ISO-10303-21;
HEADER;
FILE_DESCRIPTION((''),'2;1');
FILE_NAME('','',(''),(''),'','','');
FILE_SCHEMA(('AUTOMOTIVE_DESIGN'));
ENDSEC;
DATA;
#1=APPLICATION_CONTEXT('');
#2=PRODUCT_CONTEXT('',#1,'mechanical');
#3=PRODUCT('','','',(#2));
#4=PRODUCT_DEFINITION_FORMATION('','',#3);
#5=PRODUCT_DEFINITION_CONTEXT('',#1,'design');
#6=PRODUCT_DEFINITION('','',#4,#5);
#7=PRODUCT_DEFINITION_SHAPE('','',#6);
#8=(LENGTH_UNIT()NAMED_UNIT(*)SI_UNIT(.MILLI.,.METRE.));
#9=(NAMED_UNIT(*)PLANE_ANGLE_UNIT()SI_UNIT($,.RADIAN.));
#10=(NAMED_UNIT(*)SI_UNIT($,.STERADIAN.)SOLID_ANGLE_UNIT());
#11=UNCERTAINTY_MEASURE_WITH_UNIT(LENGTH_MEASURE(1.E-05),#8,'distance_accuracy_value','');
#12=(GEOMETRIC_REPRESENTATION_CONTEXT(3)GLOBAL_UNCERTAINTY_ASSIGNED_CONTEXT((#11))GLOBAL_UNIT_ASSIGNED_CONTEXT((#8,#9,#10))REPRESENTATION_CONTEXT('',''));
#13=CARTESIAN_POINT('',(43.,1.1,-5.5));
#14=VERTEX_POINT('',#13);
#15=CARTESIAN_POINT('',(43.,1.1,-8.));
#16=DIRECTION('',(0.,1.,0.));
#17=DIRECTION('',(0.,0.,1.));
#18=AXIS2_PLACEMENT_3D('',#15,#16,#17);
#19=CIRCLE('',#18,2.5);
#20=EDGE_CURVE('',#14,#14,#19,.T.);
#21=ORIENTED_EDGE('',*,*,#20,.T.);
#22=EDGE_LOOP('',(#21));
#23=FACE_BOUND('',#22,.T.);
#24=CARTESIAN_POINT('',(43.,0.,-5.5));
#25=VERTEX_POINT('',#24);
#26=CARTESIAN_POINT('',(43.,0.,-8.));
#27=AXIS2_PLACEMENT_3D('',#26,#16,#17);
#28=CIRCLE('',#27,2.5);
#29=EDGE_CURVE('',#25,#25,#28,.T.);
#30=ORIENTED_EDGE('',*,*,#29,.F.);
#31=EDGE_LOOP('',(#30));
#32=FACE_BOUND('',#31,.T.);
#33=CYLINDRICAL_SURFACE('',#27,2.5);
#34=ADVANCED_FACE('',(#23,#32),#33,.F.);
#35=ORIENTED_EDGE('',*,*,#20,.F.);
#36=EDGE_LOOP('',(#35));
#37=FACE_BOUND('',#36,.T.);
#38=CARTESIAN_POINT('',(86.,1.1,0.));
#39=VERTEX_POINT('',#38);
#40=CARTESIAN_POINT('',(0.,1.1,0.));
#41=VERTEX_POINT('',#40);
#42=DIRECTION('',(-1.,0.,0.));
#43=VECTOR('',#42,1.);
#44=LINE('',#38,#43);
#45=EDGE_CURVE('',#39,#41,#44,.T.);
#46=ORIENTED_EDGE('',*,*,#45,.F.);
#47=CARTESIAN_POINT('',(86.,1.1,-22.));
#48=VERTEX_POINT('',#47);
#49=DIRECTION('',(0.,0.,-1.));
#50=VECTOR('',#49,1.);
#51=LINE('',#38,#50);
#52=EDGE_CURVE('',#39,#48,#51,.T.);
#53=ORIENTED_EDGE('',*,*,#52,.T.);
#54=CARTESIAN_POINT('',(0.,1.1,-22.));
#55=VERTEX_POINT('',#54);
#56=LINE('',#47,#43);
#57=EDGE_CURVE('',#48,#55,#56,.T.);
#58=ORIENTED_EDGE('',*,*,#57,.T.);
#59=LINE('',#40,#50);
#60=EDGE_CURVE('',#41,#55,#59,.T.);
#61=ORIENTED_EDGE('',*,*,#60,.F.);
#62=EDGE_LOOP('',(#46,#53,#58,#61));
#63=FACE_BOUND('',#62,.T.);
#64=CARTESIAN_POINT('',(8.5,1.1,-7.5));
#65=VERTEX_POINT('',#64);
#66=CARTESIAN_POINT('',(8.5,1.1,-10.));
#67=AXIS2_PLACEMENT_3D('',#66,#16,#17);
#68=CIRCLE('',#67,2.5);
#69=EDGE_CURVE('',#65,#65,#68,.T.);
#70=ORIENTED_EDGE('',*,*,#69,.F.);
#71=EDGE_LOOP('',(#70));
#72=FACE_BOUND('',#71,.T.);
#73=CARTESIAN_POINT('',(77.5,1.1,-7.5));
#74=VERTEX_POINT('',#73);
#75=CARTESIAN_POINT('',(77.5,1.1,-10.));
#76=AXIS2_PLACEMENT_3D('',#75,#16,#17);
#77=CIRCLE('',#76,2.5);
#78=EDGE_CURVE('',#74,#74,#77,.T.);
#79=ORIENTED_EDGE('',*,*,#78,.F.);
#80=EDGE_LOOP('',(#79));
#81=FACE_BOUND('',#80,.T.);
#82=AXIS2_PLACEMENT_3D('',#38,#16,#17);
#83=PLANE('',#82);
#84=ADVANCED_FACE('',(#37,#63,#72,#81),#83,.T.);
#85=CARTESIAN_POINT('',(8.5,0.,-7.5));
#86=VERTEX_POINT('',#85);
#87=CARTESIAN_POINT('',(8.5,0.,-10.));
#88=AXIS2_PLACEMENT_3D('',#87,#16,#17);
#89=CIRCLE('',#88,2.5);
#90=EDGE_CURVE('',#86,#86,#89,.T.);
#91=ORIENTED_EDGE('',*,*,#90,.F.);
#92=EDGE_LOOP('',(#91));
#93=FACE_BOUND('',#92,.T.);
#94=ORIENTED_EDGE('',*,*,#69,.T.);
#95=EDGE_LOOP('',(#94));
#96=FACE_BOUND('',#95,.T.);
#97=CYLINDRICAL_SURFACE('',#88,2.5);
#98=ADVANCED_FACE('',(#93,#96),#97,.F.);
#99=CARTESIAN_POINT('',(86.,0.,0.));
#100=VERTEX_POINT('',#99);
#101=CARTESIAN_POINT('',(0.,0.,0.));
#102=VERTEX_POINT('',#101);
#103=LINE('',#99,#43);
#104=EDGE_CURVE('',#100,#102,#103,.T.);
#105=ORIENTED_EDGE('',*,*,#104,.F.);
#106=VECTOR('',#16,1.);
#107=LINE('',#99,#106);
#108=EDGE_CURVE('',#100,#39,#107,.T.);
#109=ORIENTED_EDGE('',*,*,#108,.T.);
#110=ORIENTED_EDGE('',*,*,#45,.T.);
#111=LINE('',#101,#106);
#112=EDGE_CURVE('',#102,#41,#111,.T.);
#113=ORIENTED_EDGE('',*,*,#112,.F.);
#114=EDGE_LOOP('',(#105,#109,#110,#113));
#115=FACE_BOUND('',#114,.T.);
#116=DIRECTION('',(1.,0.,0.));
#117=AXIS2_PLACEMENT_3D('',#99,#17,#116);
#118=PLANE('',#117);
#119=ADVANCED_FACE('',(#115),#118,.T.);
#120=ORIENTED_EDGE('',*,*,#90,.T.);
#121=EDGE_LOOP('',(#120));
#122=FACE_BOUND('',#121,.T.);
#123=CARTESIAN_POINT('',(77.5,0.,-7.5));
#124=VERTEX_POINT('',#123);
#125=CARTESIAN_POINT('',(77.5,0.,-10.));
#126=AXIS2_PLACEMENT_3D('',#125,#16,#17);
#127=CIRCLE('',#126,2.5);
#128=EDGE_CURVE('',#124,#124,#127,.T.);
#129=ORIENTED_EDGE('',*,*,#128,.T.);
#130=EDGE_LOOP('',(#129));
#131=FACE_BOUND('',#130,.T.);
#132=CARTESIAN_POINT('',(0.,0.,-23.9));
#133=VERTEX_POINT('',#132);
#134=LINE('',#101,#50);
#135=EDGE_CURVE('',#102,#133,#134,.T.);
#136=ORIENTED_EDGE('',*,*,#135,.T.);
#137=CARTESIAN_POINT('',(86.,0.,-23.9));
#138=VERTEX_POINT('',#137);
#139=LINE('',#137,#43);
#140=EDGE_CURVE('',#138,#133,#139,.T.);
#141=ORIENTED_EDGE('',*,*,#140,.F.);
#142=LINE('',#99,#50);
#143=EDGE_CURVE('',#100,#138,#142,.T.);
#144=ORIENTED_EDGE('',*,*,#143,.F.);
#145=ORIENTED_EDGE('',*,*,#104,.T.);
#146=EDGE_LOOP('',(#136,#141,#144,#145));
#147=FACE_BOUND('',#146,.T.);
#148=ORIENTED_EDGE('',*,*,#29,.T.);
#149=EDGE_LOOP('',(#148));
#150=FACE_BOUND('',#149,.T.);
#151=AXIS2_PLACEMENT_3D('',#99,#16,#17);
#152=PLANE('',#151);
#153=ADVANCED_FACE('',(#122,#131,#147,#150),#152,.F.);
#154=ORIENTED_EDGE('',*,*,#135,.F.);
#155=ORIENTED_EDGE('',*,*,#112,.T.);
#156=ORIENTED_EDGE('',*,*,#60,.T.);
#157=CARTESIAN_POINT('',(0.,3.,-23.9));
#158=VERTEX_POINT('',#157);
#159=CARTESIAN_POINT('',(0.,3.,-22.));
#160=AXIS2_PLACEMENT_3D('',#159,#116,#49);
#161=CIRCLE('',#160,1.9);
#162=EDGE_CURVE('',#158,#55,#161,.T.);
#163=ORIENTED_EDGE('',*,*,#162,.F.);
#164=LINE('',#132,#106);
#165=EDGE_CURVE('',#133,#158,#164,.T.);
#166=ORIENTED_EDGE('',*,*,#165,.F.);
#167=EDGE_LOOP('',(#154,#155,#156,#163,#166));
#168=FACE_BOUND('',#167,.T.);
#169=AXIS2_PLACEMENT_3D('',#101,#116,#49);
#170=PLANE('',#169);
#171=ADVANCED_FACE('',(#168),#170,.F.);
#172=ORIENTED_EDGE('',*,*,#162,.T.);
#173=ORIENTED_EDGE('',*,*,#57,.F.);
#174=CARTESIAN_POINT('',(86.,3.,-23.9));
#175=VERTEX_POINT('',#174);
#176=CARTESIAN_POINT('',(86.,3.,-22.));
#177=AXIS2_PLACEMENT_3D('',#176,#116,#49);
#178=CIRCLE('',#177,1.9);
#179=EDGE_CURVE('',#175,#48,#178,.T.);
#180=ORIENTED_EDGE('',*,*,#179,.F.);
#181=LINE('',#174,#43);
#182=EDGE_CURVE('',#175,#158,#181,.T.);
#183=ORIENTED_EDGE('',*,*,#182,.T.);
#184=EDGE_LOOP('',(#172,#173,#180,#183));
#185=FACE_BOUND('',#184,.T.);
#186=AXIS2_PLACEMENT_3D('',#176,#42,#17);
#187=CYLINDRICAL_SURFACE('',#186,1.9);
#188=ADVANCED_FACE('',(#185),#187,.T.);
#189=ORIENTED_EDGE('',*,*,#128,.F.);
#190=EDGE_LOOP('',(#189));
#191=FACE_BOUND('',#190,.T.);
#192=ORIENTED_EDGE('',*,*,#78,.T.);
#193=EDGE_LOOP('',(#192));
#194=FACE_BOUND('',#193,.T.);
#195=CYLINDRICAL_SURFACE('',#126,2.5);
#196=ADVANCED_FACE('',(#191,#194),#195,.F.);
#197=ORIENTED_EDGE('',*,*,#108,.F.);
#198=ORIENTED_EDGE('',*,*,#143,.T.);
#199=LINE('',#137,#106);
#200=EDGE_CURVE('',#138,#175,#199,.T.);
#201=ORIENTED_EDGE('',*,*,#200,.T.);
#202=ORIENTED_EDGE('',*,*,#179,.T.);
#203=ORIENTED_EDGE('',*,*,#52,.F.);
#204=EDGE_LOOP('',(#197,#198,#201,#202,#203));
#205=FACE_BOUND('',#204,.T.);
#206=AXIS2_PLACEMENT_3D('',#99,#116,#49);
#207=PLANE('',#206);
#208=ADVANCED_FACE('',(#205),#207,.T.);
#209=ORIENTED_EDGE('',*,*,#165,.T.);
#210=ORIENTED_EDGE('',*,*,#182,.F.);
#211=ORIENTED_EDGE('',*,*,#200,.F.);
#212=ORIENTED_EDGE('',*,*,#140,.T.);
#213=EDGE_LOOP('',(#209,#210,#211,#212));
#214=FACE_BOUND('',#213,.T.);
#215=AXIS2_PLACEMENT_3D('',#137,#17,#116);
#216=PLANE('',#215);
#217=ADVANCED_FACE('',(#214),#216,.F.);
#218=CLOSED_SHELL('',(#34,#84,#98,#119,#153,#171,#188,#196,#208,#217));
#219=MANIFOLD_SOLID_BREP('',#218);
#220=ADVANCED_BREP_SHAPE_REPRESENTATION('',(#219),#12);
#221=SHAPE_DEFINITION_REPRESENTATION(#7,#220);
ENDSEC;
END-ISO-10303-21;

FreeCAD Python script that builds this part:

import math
import FreeCAD as App
import Part
import Sketcher

doc = App.newDocument("Part")
body = doc.addObject("PartDesign::Body", "Body")

# Sketch on YZ plane
sketch1 = body.newObject("Sketcher::SketchObject", "Sketch")
sketch1.AttachmentSupport = (doc.getObject("YZ_Plane"), [""])
sketch1.MapMode = "FlatFace"
sketch1.addGeometry(Part.ArcOfCircle(Part.Circle(App.Vector(3, -22, 0), App.Vector(0, 0, 1), 1.9), math.radians(-90), math.radians(180)), False)
sketch1.addGeometry(Part.LineSegment(App.Vector(1.1, -22, 0), App.Vector(1.1, 0, 0)), False)
sketch1.addGeometry(Part.LineSegment(App.Vector(1.1, 0, 0), App.Vector(0, 0, 0)), False)
sketch1.addGeometry(Part.LineSegment(App.Vector(0, 0, 0), App.Vector(0, -23.9, 0)), False)
sketch1.addGeometry(Part.LineSegment(App.Vector(0, -23.9, 0), App.Vector(3, -23.9, 0)), False)
sketch1.addConstraint(Sketcher.Constraint("Tangent", 0, 2, 1, 1))
sketch1.addConstraint(Sketcher.Constraint("Coincident", 1, 2, 2, 1))
sketch1.addConstraint(Sketcher.Constraint("Coincident", 2, 2, 3, 1))
sketch1.addConstraint(Sketcher.Constraint("Coincident", 3, 2, 4, 1))
sketch1.addConstraint(Sketcher.Constraint("Tangent", 4, 2, 0, 1))
sketch1.addConstraint(Sketcher.Constraint("Vertical", 1))
sketch1.addConstraint(Sketcher.Constraint("Horizontal", 2))
sketch1.addConstraint(Sketcher.Constraint("Vertical", 3))
sketch1.addConstraint(Sketcher.Constraint("Horizontal", 4))
sketch1.addConstraint(Sketcher.Constraint("Coincident", 2, 2, -1, 1))
sketch1.addConstraint(Sketcher.Constraint("Radius", 0, 1.9))
sketch1.addConstraint(Sketcher.Constraint("DistanceX", 4, 1, 4, 2, 3.0))
sketch1.addConstraint(Sketcher.Constraint("DistanceY", 1, 1, 1, 2, 22.0))
pad1 = body.newObject("PartDesign::Pad", "Pad")
pad1.Profile = sketch1
pad1.Length = 86

# Sketch on XZ plane
sketch2 = body.newObject("Sketcher::SketchObject", "Sketch001")
sketch2.AttachmentSupport = (doc.getObject("XZ_Plane"), [""])
sketch2.MapMode = "FlatFace"
sketch2.AttachmentOffset = App.Placement(App.Vector(0, 0, -1.1), App.Rotation())
sketch2.addGeometry(Part.Circle(App.Vector(8.5, -10, 0), App.Vector(0, 0, 1), 2.5), False)
sketch2.addGeometry(Part.Circle(App.Vector(77.5, -10, 0), App.Vector(0, 0, 1), 2.5), False)
sketch2.addGeometry(Part.Circle(App.Vector(43, -8, 0), App.Vector(0, 0, 1), 2.5), False)
sketch2.addConstraint(Sketcher.Constraint("Equal", 0, 1))
sketch2.addConstraint(Sketcher.Constraint("Equal", 1, 2))
sketch2.addConstraint(Sketcher.Constraint("Horizontal", 0, 3, 1, 3))
sketch2.addConstraint(Sketcher.Constraint("Diameter", 0, 5.0))
sketch2.addConstraint(Sketcher.Constraint("DistanceY", 0, 3, -1, 1, 10.0))
sketch2.addConstraint(Sketcher.Constraint("DistanceX", -1, 1, 2, 3, 43.0))
sketch2.addConstraint(Sketcher.Constraint("DistanceY", 2, 3, -1, 1, 8.0))
sketch2.addConstraint(Sketcher.Constraint("DistanceX", 0, 3, 1, 3, 69.0))
sketch2.addConstraint(Sketcher.Constraint("DistanceX", -1, 1, 0, 3, 8.5))
pocket1 = body.newObject("PartDesign::Pocket", "Pocket")
pocket1.Profile = sketch2
pocket1.Type = "ThroughAll"
pocket1.Reversed = True

doc.recompute()
